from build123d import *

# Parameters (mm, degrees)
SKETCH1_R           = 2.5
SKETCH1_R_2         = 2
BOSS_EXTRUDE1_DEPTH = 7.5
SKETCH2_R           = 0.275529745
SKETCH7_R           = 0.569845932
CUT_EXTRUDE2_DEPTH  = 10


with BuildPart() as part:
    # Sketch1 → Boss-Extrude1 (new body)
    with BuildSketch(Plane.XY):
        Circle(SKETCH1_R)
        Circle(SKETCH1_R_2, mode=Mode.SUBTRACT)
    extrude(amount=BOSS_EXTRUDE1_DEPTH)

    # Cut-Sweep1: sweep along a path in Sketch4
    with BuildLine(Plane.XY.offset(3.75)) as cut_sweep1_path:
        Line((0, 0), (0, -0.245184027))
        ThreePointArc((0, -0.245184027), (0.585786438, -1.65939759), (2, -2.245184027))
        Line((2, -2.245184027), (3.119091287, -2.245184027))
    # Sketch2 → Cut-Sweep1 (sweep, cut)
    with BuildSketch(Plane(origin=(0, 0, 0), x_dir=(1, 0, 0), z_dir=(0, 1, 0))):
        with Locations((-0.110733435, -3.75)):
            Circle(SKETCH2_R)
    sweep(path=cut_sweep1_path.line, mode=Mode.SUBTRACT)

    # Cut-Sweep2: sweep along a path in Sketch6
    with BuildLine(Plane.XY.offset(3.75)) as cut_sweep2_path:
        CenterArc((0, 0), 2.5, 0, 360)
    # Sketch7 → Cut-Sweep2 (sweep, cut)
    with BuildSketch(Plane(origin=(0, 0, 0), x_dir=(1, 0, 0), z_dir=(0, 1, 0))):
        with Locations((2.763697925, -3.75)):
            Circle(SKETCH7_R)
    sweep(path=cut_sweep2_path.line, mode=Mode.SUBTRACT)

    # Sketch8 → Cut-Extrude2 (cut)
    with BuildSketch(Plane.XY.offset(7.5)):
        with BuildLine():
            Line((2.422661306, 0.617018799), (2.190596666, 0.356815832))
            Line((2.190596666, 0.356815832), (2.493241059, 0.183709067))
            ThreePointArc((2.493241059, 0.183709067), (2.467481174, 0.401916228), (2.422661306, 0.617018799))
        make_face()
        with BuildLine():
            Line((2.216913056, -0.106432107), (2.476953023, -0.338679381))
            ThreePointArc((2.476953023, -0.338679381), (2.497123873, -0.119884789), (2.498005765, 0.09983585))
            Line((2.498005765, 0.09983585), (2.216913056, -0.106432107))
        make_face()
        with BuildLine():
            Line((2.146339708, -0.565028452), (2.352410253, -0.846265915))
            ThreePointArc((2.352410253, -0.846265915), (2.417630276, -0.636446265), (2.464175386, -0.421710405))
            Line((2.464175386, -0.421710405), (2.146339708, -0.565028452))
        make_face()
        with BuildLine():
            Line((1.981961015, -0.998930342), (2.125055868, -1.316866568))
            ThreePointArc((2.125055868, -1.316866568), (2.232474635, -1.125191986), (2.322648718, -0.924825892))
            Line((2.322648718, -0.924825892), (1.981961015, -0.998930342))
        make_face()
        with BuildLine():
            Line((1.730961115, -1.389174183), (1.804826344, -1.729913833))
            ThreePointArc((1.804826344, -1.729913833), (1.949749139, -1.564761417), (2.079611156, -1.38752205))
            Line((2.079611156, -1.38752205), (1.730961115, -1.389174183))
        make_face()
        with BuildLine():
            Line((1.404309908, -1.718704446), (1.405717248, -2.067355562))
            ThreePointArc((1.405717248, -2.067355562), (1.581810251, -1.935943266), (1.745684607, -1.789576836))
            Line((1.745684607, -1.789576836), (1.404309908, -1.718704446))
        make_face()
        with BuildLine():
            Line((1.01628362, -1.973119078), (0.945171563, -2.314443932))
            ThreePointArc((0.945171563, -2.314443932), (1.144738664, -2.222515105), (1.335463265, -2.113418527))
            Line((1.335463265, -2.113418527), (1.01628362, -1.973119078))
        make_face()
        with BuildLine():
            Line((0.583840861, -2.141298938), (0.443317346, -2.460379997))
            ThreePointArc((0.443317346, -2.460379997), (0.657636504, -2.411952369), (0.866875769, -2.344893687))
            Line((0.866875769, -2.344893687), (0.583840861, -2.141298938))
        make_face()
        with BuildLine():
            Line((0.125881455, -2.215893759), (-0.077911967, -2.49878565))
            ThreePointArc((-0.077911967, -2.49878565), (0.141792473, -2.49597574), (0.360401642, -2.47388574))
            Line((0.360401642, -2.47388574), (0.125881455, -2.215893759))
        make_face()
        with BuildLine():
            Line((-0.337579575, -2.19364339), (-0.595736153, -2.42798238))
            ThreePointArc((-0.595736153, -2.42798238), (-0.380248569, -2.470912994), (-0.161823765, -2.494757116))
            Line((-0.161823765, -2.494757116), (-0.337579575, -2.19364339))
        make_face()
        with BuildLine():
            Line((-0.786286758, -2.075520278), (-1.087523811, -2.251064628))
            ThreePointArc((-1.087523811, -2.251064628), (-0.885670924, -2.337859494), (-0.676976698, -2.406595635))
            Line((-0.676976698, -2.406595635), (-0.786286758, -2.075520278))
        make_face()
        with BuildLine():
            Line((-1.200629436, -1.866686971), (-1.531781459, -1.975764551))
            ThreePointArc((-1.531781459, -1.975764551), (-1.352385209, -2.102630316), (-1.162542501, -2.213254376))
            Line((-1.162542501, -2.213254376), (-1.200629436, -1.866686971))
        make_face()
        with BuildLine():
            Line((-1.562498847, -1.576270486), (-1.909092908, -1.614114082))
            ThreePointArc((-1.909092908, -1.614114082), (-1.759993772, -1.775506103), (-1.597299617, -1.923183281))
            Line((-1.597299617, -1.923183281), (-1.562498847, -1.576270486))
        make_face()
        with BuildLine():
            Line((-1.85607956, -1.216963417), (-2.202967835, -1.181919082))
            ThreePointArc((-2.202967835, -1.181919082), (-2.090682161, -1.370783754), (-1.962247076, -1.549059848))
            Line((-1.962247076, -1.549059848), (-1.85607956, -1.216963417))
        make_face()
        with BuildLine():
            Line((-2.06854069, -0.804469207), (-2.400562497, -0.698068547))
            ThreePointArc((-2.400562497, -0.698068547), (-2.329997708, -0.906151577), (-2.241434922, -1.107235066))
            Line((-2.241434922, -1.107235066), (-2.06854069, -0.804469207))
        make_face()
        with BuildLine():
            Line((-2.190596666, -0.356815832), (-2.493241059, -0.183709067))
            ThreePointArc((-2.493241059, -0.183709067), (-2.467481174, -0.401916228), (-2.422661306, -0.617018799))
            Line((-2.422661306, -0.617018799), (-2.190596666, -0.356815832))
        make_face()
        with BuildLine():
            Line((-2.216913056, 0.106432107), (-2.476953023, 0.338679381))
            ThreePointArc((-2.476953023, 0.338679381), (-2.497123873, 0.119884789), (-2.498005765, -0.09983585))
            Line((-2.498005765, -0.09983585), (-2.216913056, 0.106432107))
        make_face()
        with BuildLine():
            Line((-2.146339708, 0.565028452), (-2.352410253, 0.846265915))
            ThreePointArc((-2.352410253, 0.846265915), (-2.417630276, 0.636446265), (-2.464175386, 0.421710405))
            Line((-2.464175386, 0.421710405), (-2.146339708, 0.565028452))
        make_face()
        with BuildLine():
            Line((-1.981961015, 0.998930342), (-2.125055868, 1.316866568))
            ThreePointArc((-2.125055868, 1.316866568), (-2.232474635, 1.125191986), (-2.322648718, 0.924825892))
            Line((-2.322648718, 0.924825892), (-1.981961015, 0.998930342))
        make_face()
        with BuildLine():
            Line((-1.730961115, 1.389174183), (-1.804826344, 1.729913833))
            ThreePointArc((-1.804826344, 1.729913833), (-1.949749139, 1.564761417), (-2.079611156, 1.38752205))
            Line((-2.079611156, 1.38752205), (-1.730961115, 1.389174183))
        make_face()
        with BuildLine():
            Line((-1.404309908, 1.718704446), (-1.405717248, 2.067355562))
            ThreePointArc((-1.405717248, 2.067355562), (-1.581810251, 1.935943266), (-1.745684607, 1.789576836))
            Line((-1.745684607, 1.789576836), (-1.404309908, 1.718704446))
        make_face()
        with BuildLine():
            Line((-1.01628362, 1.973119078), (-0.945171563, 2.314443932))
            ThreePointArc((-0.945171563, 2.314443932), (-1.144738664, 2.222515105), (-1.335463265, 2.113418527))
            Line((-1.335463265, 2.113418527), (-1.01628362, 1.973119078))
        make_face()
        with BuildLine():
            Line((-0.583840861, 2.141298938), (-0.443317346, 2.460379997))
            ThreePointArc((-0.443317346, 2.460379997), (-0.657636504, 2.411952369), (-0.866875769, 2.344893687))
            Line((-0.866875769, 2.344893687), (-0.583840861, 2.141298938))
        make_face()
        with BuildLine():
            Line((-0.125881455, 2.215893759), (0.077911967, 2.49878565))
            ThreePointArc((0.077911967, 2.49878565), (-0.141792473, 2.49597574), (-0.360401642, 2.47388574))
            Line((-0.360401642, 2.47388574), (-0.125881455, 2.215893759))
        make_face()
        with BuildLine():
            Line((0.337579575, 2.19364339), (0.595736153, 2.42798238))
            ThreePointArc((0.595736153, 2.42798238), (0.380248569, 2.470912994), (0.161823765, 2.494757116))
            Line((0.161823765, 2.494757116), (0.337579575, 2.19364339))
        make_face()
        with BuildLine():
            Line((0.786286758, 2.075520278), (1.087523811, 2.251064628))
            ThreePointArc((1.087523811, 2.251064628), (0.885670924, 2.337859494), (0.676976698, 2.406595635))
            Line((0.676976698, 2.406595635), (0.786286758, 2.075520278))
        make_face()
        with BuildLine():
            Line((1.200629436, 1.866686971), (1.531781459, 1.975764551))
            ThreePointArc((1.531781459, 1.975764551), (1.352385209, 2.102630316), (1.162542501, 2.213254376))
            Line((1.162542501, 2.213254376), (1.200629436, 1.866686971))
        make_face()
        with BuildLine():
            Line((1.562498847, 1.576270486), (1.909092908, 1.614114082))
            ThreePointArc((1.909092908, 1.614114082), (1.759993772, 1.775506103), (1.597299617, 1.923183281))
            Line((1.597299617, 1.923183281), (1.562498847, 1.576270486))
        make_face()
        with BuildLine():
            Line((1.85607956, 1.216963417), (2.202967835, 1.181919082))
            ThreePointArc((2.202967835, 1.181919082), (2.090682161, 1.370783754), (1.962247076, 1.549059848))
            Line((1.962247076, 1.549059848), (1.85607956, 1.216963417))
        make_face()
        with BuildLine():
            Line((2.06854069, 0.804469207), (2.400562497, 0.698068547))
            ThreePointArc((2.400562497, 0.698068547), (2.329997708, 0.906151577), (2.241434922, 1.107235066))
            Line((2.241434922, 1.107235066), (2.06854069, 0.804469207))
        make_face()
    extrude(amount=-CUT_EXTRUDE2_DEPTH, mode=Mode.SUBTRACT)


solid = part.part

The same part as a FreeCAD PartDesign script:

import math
import FreeCAD as App
import Part
import Sketcher
Q = App.Units.Quantity

doc = App.newDocument("Part")
body = doc.addObject("PartDesign::Body", "Body")

sketch1 = doc.addObject("Sketcher::SketchObject", "Sketch")
body.addObject(sketch1)
sketch1.AttachmentSupport = (doc.XY_Plane, [""])
sketch1.MapMode = "FlatFace"
sketch1.addGeometry([
    Part.Circle(App.Vector(0, 0, 0), App.Vector(0, 0, 1), 2.5),
    Part.Circle(App.Vector(0, 0, 0), App.Vector(0, 0, 1), 2),
], False)
sketch1.addConstraint([
    Sketcher.Constraint("Coincident", 0, 3, -1, 1),
    Sketcher.Constraint("Coincident", 1, 3, -1, 1),
    Sketcher.Constraint("Diameter", 0, Q("5 mm")),
    Sketcher.Constraint("Diameter", 1, Q("4 mm")),
])
pad1 = doc.addObject("PartDesign::Pad", "Pad")
body.addObject(pad1)
pad1.Profile = sketch1
pad1.Length = 7.5

sketch2 = doc.addObject("Sketcher::SketchObject", "Sketch001")
body.addObject(sketch2)
sketch2.AttachmentSupport = (doc.XZ_Plane, [""])
sketch2.MapMode = "FlatFace"
sketch2.addGeometry(Part.Circle(App.Vector(-0.11, 3.75, 0), App.Vector(0, 0, 1), 0.28), False)
sketch2.addConstraint([
    Sketcher.Constraint("Diameter", 0, Q("0.551059 mm")),
    Sketcher.Constraint("DistanceY", -1, 1, 0, 3, Q("3.75 mm")),
    Sketcher.Constraint("DistanceX", 0, 3, -1, 1, Q("0.110733 mm")),
])

sketch3 = doc.addObject("Sketcher::SketchObject", "Sketch002")
body.addObject(sketch3)
sketch3.AttachmentSupport = (doc.XY_Plane, [""])
sketch3.MapMode = "FlatFace"
sketch3.AttachmentOffset = App.Placement(App.Vector(0, 0, 3.75), App.Rotation())
sketch3.addGeometry([
    Part.LineSegment(App.Vector(0, 0, 0), App.Vector(0, -0.25, 0)),
    Part.ArcOfCircle(Part.Circle(App.Vector(2, -0.25, 0), App.Vector(0, 0, 1), 2), math.radians(180), math.radians(270)),
    Part.LineSegment(App.Vector(2, -2.25, 0), App.Vector(3.12, -2.25, 0)),
], False)
sketch3.addConstraint([
    Sketcher.Constraint("Tangent", 0, 2, 1, 1),
    Sketcher.Constraint("Tangent", 1, 2, 2, 1),
    Sketcher.Constraint("Vertical", 0),
    Sketcher.Constraint("Horizontal", 2),
    Sketcher.Constraint("Coincident", 0, 1, -1, 1),
    Sketcher.Constraint("Radius", 1, Q("2 mm")),
    Sketcher.Constraint("DistanceX", 2, 1, 2, 2, Q("1.119091 mm")),
    Sketcher.Constraint("DistanceY", 0, 2, 0, 1, Q("0.245184 mm")),
])
doc.recompute()

subtractivepipe = doc.addObject("PartDesign::SubtractivePipe", "SubtractivePipe")
body.addObject(subtractivepipe)
subtractivepipe.Profile = sketch2
subtractivepipe.Spine = (sketch3, ["Edge1", "Edge2", "Edge3"])

sketch4 = doc.addObject("Sketcher::SketchObject", "Sketch003")
body.addObject(sketch4)
sketch4.AttachmentSupport = (doc.XZ_Plane, [""])
sketch4.MapMode = "FlatFace"
sketch4.addGeometry(Part.Circle(App.Vector(2.8, 3.8, 0), App.Vector(0, 0, 1), 0.6), False)
sketch4.addConstraint([
    Sketcher.Constraint("Diameter", 0, Q("1.139692 mm")),
    Sketcher.Constraint("DistanceY", -1, 1, 0, 3, Q("3.75 mm")),
    Sketcher.Constraint("DistanceX", -1, 1, 0, 3, Q("2.763698 mm")),
])

sketch5 = doc.addObject("Sketcher::SketchObject", "Sketch004")
body.addObject(sketch5)
sketch5.AttachmentSupport = (doc.XY_Plane, [""])
sketch5.MapMode = "FlatFace"
sketch5.AttachmentOffset = App.Placement(App.Vector(0, 0, 3.75), App.Rotation())
sketch5.addGeometry(Part.Circle(App.Vector(0, 0, 0), App.Vector(0, 0, 1), 2.5), False)
sketch5.addConstraint([
    Sketcher.Constraint("Coincident", 0, 3, -1, 1),
    Sketcher.Constraint("Diameter", 0, Q("5 mm")),
])
doc.recompute()

subtractivepipe2 = doc.addObject("PartDesign::SubtractivePipe", "SubtractivePipe001")
body.addObject(subtractivepipe2)
subtractivepipe2.Profile = sketch4
subtractivepipe2.Spine = (sketch5, ["Edge1"])

sketch6 = doc.addObject("Sketcher::SketchObject", "Sketch005")
body.addObject(sketch6)
sketch6.AttachmentSupport = (doc.XY_Plane, [""])
sketch6.MapMode = "FlatFace"
sketch6.AttachmentOffset = App.Placement(App.Vector(0, 0, 7.5), App.Rotation())
sketch6.addGeometry([
    Part.LineSegment(App.Vector(2.42, 0.62, 0), App.Vector(2.19, 0.36, 0)),
    Part.LineSegment(App.Vector(2.19, 0.36, 0), App.Vector(2.49, 0.18, 0)),
    Part.ArcOfCircle(Part.Circle(App.Vector(0, 0, 0), App.Vector(0, 0, 1), 2.5), math.radians(4.21), math.radians(14.29)),
    Part.LineSegment(App.Vector(2.22, -0.11, 0), App.Vector(2.48, -0.34, 0)),
    Part.ArcOfCircle(Part.Circle(App.Vector(0, 0, 0), App.Vector(0, 0, 1), 2.5), math.radians(-7.79), math.radians(2.29)),
    Part.LineSegment(App.Vector(2.5, 0.1, 0), App.Vector(2.22, -0.11, 0)),
    Part.LineSegment(App.Vector(2.15, -0.57, 0), App.Vector(2.35, -0.85, 0)),
    Part.ArcOfCircle(Part.Circle(App.Vector(0, 0, 0), App.Vector(0, 0, 1), 2.5), math.radians(-19.79), math.radians(-9.71)),
    Part.LineSegment(App.Vector(2.46, -0.42, 0), App.Vector(2.15, -0.57, 0)),
    Part.LineSegment(App.Vector(1.98, -1, 0), App.Vector(2.13, -1.32, 0)),
    Part.ArcOfCircle(Part.Circle(App.Vector(0, 0, 0), App.Vector(0, 0, 1), 2.5), math.radians(-31.79), math.radians(-21.71)),
    Part.LineSegment(App.Vector(2.32, -0.92, 0), App.Vector(1.98, -1, 0)),
    Part.LineSegment(App.Vector(1.73, -1.39, 0), App.Vector(1.8, -1.73, 0)),
    Part.ArcOfCircle(Part.Circle(App.Vector(0, 0, 0), App.Vector(0, 0, 1), 2.5), math.radians(-43.79), math.radians(-33.71)),
    Part.LineSegment(App.Vector(2.08, -1.39, 0), App.Vector(1.73, -1.39, 0)),
    Part.LineSegment(App.Vector(1.4, -1.72, 0), App.Vector(1.41, -2.07, 0)),
    Part.ArcOfCircle(Part.Circle(App.Vector(0, 0, 0), App.Vector(0, 0, 1), 2.5), math.radians(-55.79), math.radians(-45.71)),
    Part.LineSegment(App.Vector(1.75, -1.79, 0), App.Vector(1.4, -1.72, 0)),
    Part.LineSegment(App.Vector(1.02, -1.97, 0), App.Vector(0.95, -2.31, 0)),
    Part.ArcOfCircle(Part.Circle(App.Vector(0, 0, 0), App.Vector(0, 0, 1), 2.5), math.radians(-67.79), math.radians(-57.71)),
    Part.LineSegment(App.Vector(1.34, -2.11, 0), App.Vector(1.02, -1.97, 0)),
    Part.LineSegment(App.Vector(0.58, -2.14, 0), App.Vector(0.44, -2.46, 0)),
    Part.ArcOfCircle(Part.Circle(App.Vector(0, 0, 0), App.Vector(0, 0, 1), 2.5), math.radians(-79.79), math.radians(-69.71)),
    Part.LineSegment(App.Vector(0.87, -2.34, 0), App.Vector(0.58, -2.14, 0)),
    Part.LineSegment(App.Vector(0.13, -2.22, 0), App.Vector(-0.08, -2.5, 0)),
    Part.ArcOfCircle(Part.Circle(App.Vector(0, 0, 0), App.Vector(0, 0, 1), 2.5), math.radians(-91.79), math.radians(-81.71)),
    Part.LineSegment(App.Vector(0.36, -2.47, 0), App.Vector(0.13, -2.22, 0)),
    Part.LineSegment(App.Vector(-0.34, -2.19, 0), App.Vector(-0.6, -2.43, 0)),
    Part.ArcOfCircle(Part.Circle(App.Vector(0, 0, 0), App.Vector(0, 0, 1), 2.5), math.radians(-103.79), math.radians(-93.71)),
    Part.LineSegment(App.Vector(-0.16, -2.49, 0), App.Vector(-0.34, -2.19, 0)),
    Part.LineSegment(App.Vector(-0.79, -2.08, 0), App.Vector(-1.09, -2.25, 0)),
    Part.ArcOfCircle(Part.Circle(App.Vector(0, 0, 0), App.Vector(0, 0, 1), 2.5), math.radians(-115.79), math.radians(-105.71)),
    Part.LineSegment(App.Vector(-0.68, -2.41, 0), App.Vector(-0.79, -2.08, 0)),
    Part.LineSegment(App.Vector(-1.2, -1.87, 0), App.Vector(-1.53, -1.98, 0)),
    Part.ArcOfCircle(Part.Circle(App.Vector(0, 0, 0), App.Vector(0, 0, 1), 2.5), math.radians(-127.79), math.radians(-117.71)),
    Part.LineSegment(App.Vector(-1.16, -2.21, 0), App.Vector(-1.2, -1.87, 0)),
    Part.LineSegment(App.Vector(-1.56, -1.58, 0), App.Vector(-1.91, -1.61, 0)),
    Part.ArcOfCircle(Part.Circle(App.Vector(0, 0, 0), App.Vector(0, 0, 1), 2.5), math.radians(-139.79), math.radians(-129.71)),
    Part.LineSegment(App.Vector(-1.6, -1.92, 0), App.Vector(-1.56, -1.58, 0)),
    Part.LineSegment(App.Vector(-1.86, -1.22, 0), App.Vector(-2.2, -1.18, 0)),
    Part.ArcOfCircle(Part.Circle(App.Vector(0, 0, 0), App.Vector(0, 0, 1), 2.5), math.radians(-151.79), math.radians(-141.71)),
    Part.LineSegment(App.Vector(-1.96, -1.55, 0), App.Vector(-1.86, -1.22, 0)),
    Part.LineSegment(App.Vector(-2.07, -0.8, 0), App.Vector(-2.4, -0.7, 0)),
    Part.ArcOfCircle(Part.Circle(App.Vector(0, 0, 0), App.Vector(0, 0, 1), 2.5), math.radians(-163.79), math.radians(-153.71)),
    Part.LineSegment(App.Vector(-2.24, -1.11, 0), App.Vector(-2.07, -0.8, 0)),
    Part.LineSegment(App.Vector(-2.19, -0.36, 0), App.Vector(-2.49, -0.18, 0)),
    Part.ArcOfCircle(Part.Circle(App.Vector(0, 0, 0), App.Vector(0, 0, 1), 2.5), math.radians(-175.79), math.radians(-165.71)),
    Part.LineSegment(App.Vector(-2.42, -0.62, 0), App.Vector(-2.19, -0.36, 0)),
    Part.LineSegment(App.Vector(-2.22, 0.11, 0), App.Vector(-2.48, 0.34, 0)),
    Part.ArcOfCircle(Part.Circle(App.Vector(0, 0, 0), App.Vector(0, 0, 1), 2.5), math.radians(172.21), math.radians(182.29)),
    Part.LineSegment(App.Vector(-2.5, -0.1, 0), App.Vector(-2.22, 0.11, 0)),
    Part.LineSegment(App.Vector(-2.15, 0.57, 0), App.Vector(-2.35, 0.85, 0)),
    Part.ArcOfCircle(Part.Circle(App.Vector(0, 0, 0), App.Vector(0, 0, 1), 2.5), math.radians(160.21), math.radians(170.29)),
    Part.LineSegment(App.Vector(-2.46, 0.42, 0), App.Vector(-2.15, 0.57, 0)),
    Part.LineSegment(App.Vector(-1.98, 1, 0), App.Vector(-2.13, 1.32, 0)),
    Part.ArcOfCircle(Part.Circle(App.Vector(0, 0, 0), App.Vector(0, 0, 1), 2.5), math.radians(148.21), math.radians(158.29)),
    Part.LineSegment(App.Vector(-2.32, 0.92, 0), App.Vector(-1.98, 1, 0)),
    Part.LineSegment(App.Vector(-1.73, 1.39, 0), App.Vector(-1.8, 1.73, 0)),
    Part.ArcOfCircle(Part.Circle(App.Vector(0, 0, 0), App.Vector(0, 0, 1), 2.5), math.radians(136.21), math.radians(146.29)),
    Part.LineSegment(App.Vector(-2.08, 1.39, 0), App.Vector(-1.73, 1.39, 0)),
    Part.LineSegment(App.Vector(-1.4, 1.72, 0), App.Vector(-1.41, 2.07, 0)),
    Part.ArcOfCircle(Part.Circle(App.Vector(0, 0, 0), App.Vector(0, 0, 1), 2.5), math.radians(124.21), math.radians(134.29)),
    Part.LineSegment(App.Vector(-1.75, 1.79, 0), App.Vector(-1.4, 1.72, 0)),
    Part.LineSegment(App.Vector(-1.02, 1.97, 0), App.Vector(-0.95, 2.31, 0)),
    Part.ArcOfCircle(Part.Circle(App.Vector(0, 0, 0), App.Vector(0, 0, 1), 2.5), math.radians(112.21), math.radians(122.29)),
    Part.LineSegment(App.Vector(-1.34, 2.11, 0), App.Vector(-1.02, 1.97, 0)),
    Part.LineSegment(App.Vector(-0.58, 2.14, 0), App.Vector(-0.44, 2.46, 0)),
    Part.ArcOfCircle(Part.Circle(App.Vector(0, 0, 0), App.Vector(0, 0, 1), 2.5), math.radians(100.21), math.radians(110.29)),
    Part.LineSegment(App.Vector(-0.87, 2.34, 0), App.Vector(-0.58, 2.14, 0)),
    Part.LineSegment(App.Vector(-0.13, 2.22, 0), App.Vector(0.08, 2.5, 0)),
    Part.ArcOfCircle(Part.Circle(App.Vector(0, 0, 0), App.Vector(0, 0, 1), 2.5), math.radians(88.21), math.radians(98.29)),
    Part.LineSegment(App.Vector(-0.36, 2.47, 0), App.Vector(-0.13, 2.22, 0)),
    Part.LineSegment(App.Vector(0.34, 2.19, 0), App.Vector(0.6, 2.43, 0)),
    Part.ArcOfCircle(Part.Circle(App.Vector(0, 0, 0), App.Vector(0, 0, 1), 2.5), math.radians(76.21), math.radians(86.29)),
    Part.LineSegment(App.Vector(0.16, 2.49, 0), App.Vector(0.34, 2.19, 0)),
    Part.LineSegment(App.Vector(0.79, 2.08, 0), App.Vector(1.09, 2.25, 0)),
    Part.ArcOfCircle(Part.Circle(App.Vector(0, 0, 0), App.Vector(0, 0, 1), 2.5), math.radians(64.21), math.radians(74.29)),
    Part.LineSegment(App.Vector(0.68, 2.41, 0), App.Vector(0.79, 2.08, 0)),
    Part.LineSegment(App.Vector(1.2, 1.87, 0), App.Vector(1.53, 1.98, 0)),
    Part.ArcOfCircle(Part.Circle(App.Vector(0, 0, 0), App.Vector(0, 0, 1), 2.5), math.radians(52.21), math.radians(62.29)),
    Part.LineSegment(App.Vector(1.16, 2.21, 0), App.Vector(1.2, 1.87, 0)),
    Part.LineSegment(App.Vector(1.56, 1.58, 0), App.Vector(1.91, 1.61, 0)),
    Part.ArcOfCircle(Part.Circle(App.Vector(0, 0, 0), App.Vector(0, 0, 1), 2.5), math.radians(40.21), math.radians(50.29)),
    Part.LineSegment(App.Vector(1.6, 1.92, 0), App.Vector(1.56, 1.58, 0)),
    Part.LineSegment(App.Vector(1.86, 1.22, 0), App.Vector(2.2, 1.18, 0)),
    Part.ArcOfCircle(Part.Circle(App.Vector(0, 0, 0), App.Vector(0, 0, 1), 2.5), math.radians(28.21), math.radians(38.29)),
    Part.LineSegment(App.Vector(1.96, 1.55, 0), App.Vector(1.86, 1.22, 0)),
    Part.LineSegment(App.Vector(2.07, 0.8, 0), App.Vector(2.4, 0.7, 0)),
    Part.ArcOfCircle(Part.Circle(App.Vector(0, 0, 0), App.Vector(0, 0, 1), 2.5), math.radians(16.21), math.radians(26.29)),
    Part.LineSegment(App.Vector(2.24, 1.11, 0), App.Vector(2.07, 0.8, 0)),
], False)
sketch6.addConstraint([
    Sketcher.Constraint("Coincident", 0, 2, 1, 1),
    Sketcher.Constraint("Coincident", 1, 2, 2, 1),
    Sketcher.Constraint("Coincident", 2, 2, 0, 1),
    Sketcher.Constraint("Coincident", 3, 2, 4, 1),
    Sketcher.Constraint("Coincident", 4, 2, 5, 1),
    Sketcher.Constraint("Coincident", 5, 2, 3, 1),
    Sketcher.Constraint("Coincident", 6, 2, 7, 1),
    Sketcher.Constraint("Coincident", 7, 2, 8, 1),
    Sketcher.Constraint("Coincident", 8, 2, 6, 1),
    Sketcher.Constraint("Coincident", 9, 2, 10, 1),
    Sketcher.Constraint("Coincident", 10, 2, 11, 1),
    Sketcher.Constraint("Coincident", 11, 2, 9, 1),
    Sketcher.Constraint("Coincident", 12, 2, 13, 1),
    Sketcher.Constraint("Coincident", 13, 2, 14, 1),
    Sketcher.Constraint("Coincident", 14, 2, 12, 1),
    Sketcher.Constraint("Coincident", 15, 2, 16, 1),
    Sketcher.Constraint("Coincident", 16, 2, 17, 1),
    Sketcher.Constraint("Coincident", 17, 2, 15, 1),
    Sketcher.Constraint("Coincident", 18, 2, 19, 1),
    Sketcher.Constraint("Coincident", 19, 2, 20, 1),
    Sketcher.Constraint("Coincident", 20, 2, 18, 1),
    Sketcher.Constraint("Coincident", 21, 2, 22, 1),
    Sketcher.Constraint("Coincident", 22, 2, 23, 1),
    Sketcher.Constraint("Coincident", 23, 2, 21, 1),
    Sketcher.Constraint("Coincident", 24, 2, 25, 1),
    Sketcher.Constraint("Coincident", 25, 2, 26, 1),
    Sketcher.Constraint("Coincident", 26, 2, 24, 1),
    Sketcher.Constraint("Coincident", 27, 2, 28, 1),
    Sketcher.Constraint("Coincident", 28, 2, 29, 1),
    Sketcher.Constraint("Coincident", 29, 2, 27, 1),
    Sketcher.Constraint("Coincident", 30, 2, 31, 1),
    Sketcher.Constraint("Coincident", 31, 2, 32, 1),
    Sketcher.Constraint("Coincident", 32, 2, 30, 1),
    Sketcher.Constraint("Coincident", 33, 2, 34, 1),
    Sketcher.Constraint("Coincident", 34, 2, 35, 1),
    Sketcher.Constraint("Coincident", 35, 2, 33, 1),
    Sketcher.Constraint("Coincident", 36, 2, 37, 1),
    Sketcher.Constraint("Coincident", 37, 2, 38, 1),
    Sketcher.Constraint("Coincident", 38, 2, 36, 1),
    Sketcher.Constraint("Coincident", 39, 2, 40, 1),
    Sketcher.Constraint("Coincident", 40, 2, 41, 1),
    Sketcher.Constraint("Coincident", 41, 2, 39, 1),
    Sketcher.Constraint("Coincident", 42, 2, 43, 1),
    Sketcher.Constraint("Coincident", 43, 2, 44, 1),
    Sketcher.Constraint("Coincident", 44, 2, 42, 1),
    Sketcher.Constraint("Coincident", 45, 2, 46, 1),
    Sketcher.Constraint("Coincident", 46, 2, 47, 1),
    Sketcher.Constraint("Coincident", 47, 2, 45, 1),
    Sketcher.Constraint("Coincident", 48, 2, 49, 1),
    Sketcher.Constraint("Coincident", 49, 2, 50, 1),
    Sketcher.Constraint("Coincident", 50, 2, 48, 1),
    Sketcher.Constraint("Coincident", 51, 2, 52, 1),
    Sketcher.Constraint("Coincident", 52, 2, 53, 1),
    Sketcher.Constraint("Coincident", 53, 2, 51, 1),
    Sketcher.Constraint("Coincident", 54, 2, 55, 1),
    Sketcher.Constraint("Coincident", 55, 2, 56, 1),
    Sketcher.Constraint("Coincident", 56, 2, 54, 1),
    Sketcher.Constraint("Coincident", 57, 2, 58, 1),
    Sketcher.Constraint("Coincident", 58, 2, 59, 1),
    Sketcher.Constraint("Coincident", 59, 2, 57, 1),
    Sketcher.Constraint("Coincident", 60, 2, 61, 1),
    Sketcher.Constraint("Coincident", 61, 2, 62, 1),
    Sketcher.Constraint("Coincident", 62, 2, 60, 1),
    Sketcher.Constraint("Coincident", 63, 2, 64, 1),
    Sketcher.Constraint("Coincident", 64, 2, 65, 1),
    Sketcher.Constraint("Coincident", 65, 2, 63, 1),
    Sketcher.Constraint("Coincident", 66, 2, 67, 1),
    Sketcher.Constraint("Coincident", 67, 2, 68, 1),
    Sketcher.Constraint("Coincident", 68, 2, 66, 1),
    Sketcher.Constraint("Coincident", 69, 2, 70, 1),
    Sketcher.Constraint("Coincident", 70, 2, 71, 1),
    Sketcher.Constraint("Coincident", 71, 2, 69, 1),
    Sketcher.Constraint("Coincident", 72, 2, 73, 1),
    Sketcher.Constraint("Coincident", 73, 2, 74, 1),
    Sketcher.Constraint("Coincident", 74, 2, 72, 1),
    Sketcher.Constraint("Coincident", 75, 2, 76, 1),
    Sketcher.Constraint("Coincident", 76, 2, 77, 1),
    Sketcher.Constraint("Coincident", 77, 2, 75, 1),
    Sketcher.Constraint("Coincident", 78, 2, 79, 1),
    Sketcher.Constraint("Coincident", 79, 2, 80, 1),
    Sketcher.Constraint("Coincident", 80, 2, 78, 1),
    Sketcher.Constraint("Coincident", 81, 2, 82, 1),
    Sketcher.Constraint("Coincident", 82, 2, 83, 1),
    Sketcher.Constraint("Coincident", 83, 2, 81, 1),
    Sketcher.Constraint("Coincident", 84, 2, 85, 1),
    Sketcher.Constraint("Coincident", 85, 2, 86, 1),
    Sketcher.Constraint("Coincident", 86, 2, 84, 1),
    Sketcher.Constraint("Coincident", 87, 2, 88, 1),
    Sketcher.Constraint("Coincident", 88, 2, 89, 1),
    Sketcher.Constraint("Coincident", 89, 2, 87, 1),
    Sketcher.Constraint("Coincident", 2, 3, -1, 1),
    Sketcher.Constraint("Coincident", 4, 3, -1, 1),
    Sketcher.Constraint("Coincident", 7, 3, -1, 1),
    Sketcher.Constraint("Coincident", 10, 3, -1, 1),
    Sketcher.Constraint("Coincident", 13, 3, -1, 1),
    Sketcher.Constraint("Coincident", 16, 3, -1, 1),
    Sketcher.Constraint("Coincident", 19, 3, -1, 1),
    Sketcher.Constraint("Coincident", 22, 3, -1, 1),
    Sketcher.Constraint("Coincident", 25, 3, -1, 1),
    Sketcher.Constraint("Coincident", 28, 3, -1, 1),
    Sketcher.Constraint("Coincident", 31, 3, -1, 1),
    Sketcher.Constraint("Coincident", 34, 3, -1, 1),
    Sketcher.Constraint("Coincident", 37, 3, -1, 1),
    Sketcher.Constraint("Coincident", 40, 3, -1, 1),
    Sketcher.Constraint("Coincident", 43, 3, -1, 1),
    Sketcher.Constraint("Coincident", 46, 3, -1, 1),
    Sketcher.Constraint("Coincident", 49, 3, -1, 1),
    Sketcher.Constraint("Coincident", 52, 3, -1, 1),
    Sketcher.Constraint("Coincident", 55, 3, -1, 1),
    Sketcher.Constraint("Coincident", 58, 3, -1, 1),
    Sketcher.Constraint("Coincident", 61, 3, -1, 1),
    Sketcher.Constraint("Coincident", 64, 3, -1, 1),
    Sketcher.Constraint("Coincident", 67, 3, -1, 1),
    Sketcher.Constraint("Coincident", 70, 3, -1, 1),
    Sketcher.Constraint("Coincident", 73, 3, -1, 1),
    Sketcher.Constraint("Coincident", 76, 3, -1, 1),
    Sketcher.Constraint("Coincident", 79, 3, -1, 1),
    Sketcher.Constraint("Coincident", 82, 3, -1, 1),
    Sketcher.Constraint("Coincident", 85, 3, -1, 1),
    Sketcher.Constraint("Coincident", 88, 3, -1, 1),
    Sketcher.Constraint("Equal", 2, 4),
    Sketcher.Constraint("Equal", 4, 7),
    Sketcher.Constraint("Equal", 7, 10),
    Sketcher.Constraint("Equal", 10, 13),
    Sketcher.Constraint("Equal", 13, 16),
    Sketcher.Constraint("Equal", 16, 19),
    Sketcher.Constraint("Equal", 19, 22),
    Sketcher.Constraint("Equal", 22, 25),
    Sketcher.Constraint("Equal", 25, 28),
    Sketcher.Constraint("Equal", 28, 31),
    Sketcher.Constraint("Equal", 31, 34),
    Sketcher.Constraint("Equal", 34, 37),
    Sketcher.Constraint("Equal", 37, 40),
    Sketcher.Constraint("Equal", 40, 43),
    Sketcher.Constraint("Equal", 43, 46),
    Sketcher.Constraint("Equal", 46, 49),
    Sketcher.Constraint("Equal", 49, 52),
    Sketcher.Constraint("Equal", 52, 55),
    Sketcher.Constraint("Equal", 55, 58),
    Sketcher.Constraint("Equal", 58, 61),
    Sketcher.Constraint("Equal", 61, 64),
    Sketcher.Constraint("Equal", 64, 67),
    Sketcher.Constraint("Equal", 67, 70),
    Sketcher.Constraint("Equal", 70, 73),
    Sketcher.Constraint("Equal", 73, 76),
    Sketcher.Constraint("Equal", 76, 79),
    Sketcher.Constraint("Equal", 79, 82),
    Sketcher.Constraint("Equal", 82, 85),
    Sketcher.Constraint("Equal", 85, 88),
    Sketcher.Constraint("Symmetric", 0, 2, 47, 2, -1, 1),
    Sketcher.Constraint("Symmetric", 5, 2, 50, 2, -1, 1),
    Sketcher.Constraint("Symmetric", 8, 2, 53, 2, -1, 1),
    Sketcher.Constraint("Symmetric", 11, 2, 56, 2, -1, 1),
    Sketcher.Constraint("Symmetric", 14, 2, 59, 2, -1, 1),
    Sketcher.Constraint("Symmetric", 17, 2, 62, 2, -1, 1),
    Sketcher.Constraint("Symmetric", 20, 2, 65, 2, -1, 1),
    Sketcher.Constraint("Symmetric", 23, 2, 68, 2, -1, 1),
    Sketcher.Constraint("Symmetric", 26, 2, 71, 2, -1, 1),
    Sketcher.Constraint("Symmetric", 29, 2, 74, 2, -1, 1),
    Sketcher.Constraint("Symmetric", 32, 2, 77, 2, -1, 1),
    Sketcher.Constraint("Symmetric", 35, 2, 80, 2, -1, 1),
    Sketcher.Constraint("Symmetric", 38, 2, 83, 2, -1, 1),
    Sketcher.Constraint("Symmetric", 41, 2, 86, 2, -1, 1),
    Sketcher.Constraint("Symmetric", 44, 2, 89, 2, -1, 1),
    Sketcher.Constraint("Parallel", 1, 45),
    Sketcher.Constraint("Parallel", 0, 47),
    Sketcher.Constraint("Parallel", 3, 48),
    Sketcher.Constraint("Parallel", 5, 50),
    Sketcher.Constraint("Parallel", 6, 51),
    Sketcher.Constraint("Parallel", 8, 53),
    Sketcher.Constraint("Parallel", 9, 54),
    Sketcher.Constraint("Parallel", 11, 56),
    Sketcher.Constraint("Parallel", 12, 57),
    Sketcher.Constraint("Parallel", 14, 59),
    Sketcher.Constraint("Parallel", 15, 60),
    Sketcher.Constraint("Parallel", 17, 62),
    Sketcher.Constraint("Parallel", 18, 63),
    Sketcher.Constraint("Parallel", 20, 65),
    Sketcher.Constraint("Parallel", 21, 66),
    Sketcher.Constraint("Parallel", 23, 68),
    Sketcher.Constraint("Parallel", 24, 69),
    Sketcher.Constraint("Parallel", 26, 71),
    Sketcher.Constraint("Parallel", 27, 72),
    Sketcher.Constraint("Parallel", 29, 74),
    Sketcher.Constraint("Parallel", 30, 75),
    Sketcher.Constraint("Parallel", 32, 77),
    Sketcher.Constraint("Parallel", 33, 78),
    Sketcher.Constraint("Parallel", 35, 80),
    Sketcher.Constraint("Parallel", 36, 81),
    Sketcher.Constraint("Parallel", 38, 83),
    Sketcher.Constraint("Parallel", 39, 84),
    Sketcher.Constraint("Parallel", 41, 86),
    Sketcher.Constraint("Parallel", 42, 87),
    Sketcher.Constraint("Parallel", 44, 89),
    Sketcher.Constraint("Equal", 0, 1),
    Sketcher.Constraint("Equal", 1, 3),
    Sketcher.Constraint("Equal", 3, 5),
    Sketcher.Constraint("Equal", 5, 6),
    Sketcher.Constraint("Equal", 6, 8),
    Sketcher.Constraint("Equal", 8, 9),
    Sketcher.Constraint("Equal", 9, 11),
    Sketcher.Constraint("Equal", 11, 12),
    Sketcher.Constraint("Equal", 12, 14),
    Sketcher.Constraint("Equal", 14, 15),
    Sketcher.Constraint("Equal", 15, 17),
    Sketcher.Constraint("Equal", 17, 18),
    Sketcher.Constraint("Equal", 18, 20),
    Sketcher.Constraint("Equal", 20, 21),
    Sketcher.Constraint("Equal", 21, 23),
    Sketcher.Constraint("Equal", 23, 24),
    Sketcher.Constraint("Equal", 24, 26),
    Sketcher.Constraint("Equal", 26, 27),
    Sketcher.Constraint("Equal", 27, 29),
    Sketcher.Constraint("Equal", 29, 30),
    Sketcher.Constraint("Equal", 30, 32),
    Sketcher.Constraint("Equal", 32, 33),
    Sketcher.Constraint("Equal", 33, 35),
    Sketcher.Constraint("Equal", 35, 36),
    Sketcher.Constraint("Equal", 36, 38),
    Sketcher.Constraint("Equal", 38, 39),
    Sketcher.Constraint("Equal", 39, 41),
    Sketcher.Constraint("Equal", 41, 42),
    Sketcher.Constraint("Equal", 42, 44),
    Sketcher.Constraint("Radius", 2, Q("2.5 mm")),
    Sketcher.Constraint("DistanceY", 23, 2, -1, 1, Q("2.141299 mm")),
    Sketcher.Constraint("DistanceX", -1, 1, 25, 2, Q("0.360402 mm")),
    Sketcher.Constraint("DistanceX", 37, 2, -1, 1, Q("1.5973 mm")),
    Sketcher.Constraint("DistanceX", 38, 2, -1, 1, Q("1.562499 mm")),
    Sketcher.Constraint("DistanceX", -1, 1, 1, 2, Q("2.493241 mm")),
    Sketcher.Constraint("DistanceX", -1, 1, 2, 2, Q("2.422661 mm")),
    Sketcher.Constraint("DistanceY", 3, 2, -1, 1, Q("0.338679 mm")),
    Sketcher.Constraint("DistanceX", -1, 1, 6, 2, Q("2.35241 mm")),
    Sketcher.Constraint("DistanceY", 7, 2, -1, 1, Q("0.42171 mm")),
    Sketcher.Constraint("DistanceX", -1, 1, 8, 2, Q("2.14634 mm")),
    Sketcher.Constraint("DistanceX", -1, 1, 10, 2, Q("2.322649 mm")),
    Sketcher.Constraint("DistanceX", -1, 1, 11, 2, Q("1.981961 mm")),
    Sketcher.Constraint("DistanceX", -1, 1, 13, 2, Q("2.079611 mm")),
    Sketcher.Constraint("DistanceX", -1, 1, 17, 2, Q("1.40431 mm")),
    Sketcher.Constraint("DistanceX", -1, 1, 18, 2, Q("0.945172 mm")),
    Sketcher.Constraint("DistanceY", 19, 2, -1, 1, Q("2.113419 mm")),
    Sketcher.Constraint("DistanceY", 21, 2, -1, 1, Q("2.46038 mm")),
    Sketcher.Constraint("DistanceX", 24, 2, -1, 1, Q("0.077912 mm")),
    Sketcher.Constraint("DistanceX", 29, 2, -1, 1, Q("0.33758 mm")),
    Sketcher.Constraint("DistanceY", 32, 2, -1, 1, Q("2.07552 mm")),
    Sketcher.Constraint("DistanceX", 33, 2, -1, 1, Q("1.531781 mm")),
    Sketcher.Constraint("DistanceX", 35, 2, -1, 1, Q("1.200629 mm")),
    Sketcher.Constraint("DistanceY", 39, 2, -1, 1, Q("1.181919 mm")),
    Sketcher.Constraint("DistanceY", 40, 2, -1, 1, Q("1.54906 mm")),
    Sketcher.Constraint("DistanceY", 42, 2, -1, 1, Q("0.698069 mm")),
    Sketcher.Constraint("DistanceX", 44, 2, -1, 1, Q("2.068541 mm")),
    Sketcher.Constraint("DistanceX", -1, 1, 4, 2, Q("2.498006 mm")),
    Sketcher.Constraint("DistanceX", -1, 1, 12, 2, Q("1.804826 mm")),
    Sketcher.Constraint("DistanceX", -1, 1, 15, 2, Q("1.405717 mm")),
    Sketcher.Constraint("DistanceX", 27, 2, -1, 1, Q("0.595736 mm")),
    Sketcher.Constraint("DistanceX", 30, 2, -1, 1, Q("1.087524 mm")),
])
pocket1 = doc.addObject("PartDesign::Pocket", "Pocket")
body.addObject(pocket1)
pocket1.Profile = sketch6
pocket1.Length = 10

doc.recompute()
